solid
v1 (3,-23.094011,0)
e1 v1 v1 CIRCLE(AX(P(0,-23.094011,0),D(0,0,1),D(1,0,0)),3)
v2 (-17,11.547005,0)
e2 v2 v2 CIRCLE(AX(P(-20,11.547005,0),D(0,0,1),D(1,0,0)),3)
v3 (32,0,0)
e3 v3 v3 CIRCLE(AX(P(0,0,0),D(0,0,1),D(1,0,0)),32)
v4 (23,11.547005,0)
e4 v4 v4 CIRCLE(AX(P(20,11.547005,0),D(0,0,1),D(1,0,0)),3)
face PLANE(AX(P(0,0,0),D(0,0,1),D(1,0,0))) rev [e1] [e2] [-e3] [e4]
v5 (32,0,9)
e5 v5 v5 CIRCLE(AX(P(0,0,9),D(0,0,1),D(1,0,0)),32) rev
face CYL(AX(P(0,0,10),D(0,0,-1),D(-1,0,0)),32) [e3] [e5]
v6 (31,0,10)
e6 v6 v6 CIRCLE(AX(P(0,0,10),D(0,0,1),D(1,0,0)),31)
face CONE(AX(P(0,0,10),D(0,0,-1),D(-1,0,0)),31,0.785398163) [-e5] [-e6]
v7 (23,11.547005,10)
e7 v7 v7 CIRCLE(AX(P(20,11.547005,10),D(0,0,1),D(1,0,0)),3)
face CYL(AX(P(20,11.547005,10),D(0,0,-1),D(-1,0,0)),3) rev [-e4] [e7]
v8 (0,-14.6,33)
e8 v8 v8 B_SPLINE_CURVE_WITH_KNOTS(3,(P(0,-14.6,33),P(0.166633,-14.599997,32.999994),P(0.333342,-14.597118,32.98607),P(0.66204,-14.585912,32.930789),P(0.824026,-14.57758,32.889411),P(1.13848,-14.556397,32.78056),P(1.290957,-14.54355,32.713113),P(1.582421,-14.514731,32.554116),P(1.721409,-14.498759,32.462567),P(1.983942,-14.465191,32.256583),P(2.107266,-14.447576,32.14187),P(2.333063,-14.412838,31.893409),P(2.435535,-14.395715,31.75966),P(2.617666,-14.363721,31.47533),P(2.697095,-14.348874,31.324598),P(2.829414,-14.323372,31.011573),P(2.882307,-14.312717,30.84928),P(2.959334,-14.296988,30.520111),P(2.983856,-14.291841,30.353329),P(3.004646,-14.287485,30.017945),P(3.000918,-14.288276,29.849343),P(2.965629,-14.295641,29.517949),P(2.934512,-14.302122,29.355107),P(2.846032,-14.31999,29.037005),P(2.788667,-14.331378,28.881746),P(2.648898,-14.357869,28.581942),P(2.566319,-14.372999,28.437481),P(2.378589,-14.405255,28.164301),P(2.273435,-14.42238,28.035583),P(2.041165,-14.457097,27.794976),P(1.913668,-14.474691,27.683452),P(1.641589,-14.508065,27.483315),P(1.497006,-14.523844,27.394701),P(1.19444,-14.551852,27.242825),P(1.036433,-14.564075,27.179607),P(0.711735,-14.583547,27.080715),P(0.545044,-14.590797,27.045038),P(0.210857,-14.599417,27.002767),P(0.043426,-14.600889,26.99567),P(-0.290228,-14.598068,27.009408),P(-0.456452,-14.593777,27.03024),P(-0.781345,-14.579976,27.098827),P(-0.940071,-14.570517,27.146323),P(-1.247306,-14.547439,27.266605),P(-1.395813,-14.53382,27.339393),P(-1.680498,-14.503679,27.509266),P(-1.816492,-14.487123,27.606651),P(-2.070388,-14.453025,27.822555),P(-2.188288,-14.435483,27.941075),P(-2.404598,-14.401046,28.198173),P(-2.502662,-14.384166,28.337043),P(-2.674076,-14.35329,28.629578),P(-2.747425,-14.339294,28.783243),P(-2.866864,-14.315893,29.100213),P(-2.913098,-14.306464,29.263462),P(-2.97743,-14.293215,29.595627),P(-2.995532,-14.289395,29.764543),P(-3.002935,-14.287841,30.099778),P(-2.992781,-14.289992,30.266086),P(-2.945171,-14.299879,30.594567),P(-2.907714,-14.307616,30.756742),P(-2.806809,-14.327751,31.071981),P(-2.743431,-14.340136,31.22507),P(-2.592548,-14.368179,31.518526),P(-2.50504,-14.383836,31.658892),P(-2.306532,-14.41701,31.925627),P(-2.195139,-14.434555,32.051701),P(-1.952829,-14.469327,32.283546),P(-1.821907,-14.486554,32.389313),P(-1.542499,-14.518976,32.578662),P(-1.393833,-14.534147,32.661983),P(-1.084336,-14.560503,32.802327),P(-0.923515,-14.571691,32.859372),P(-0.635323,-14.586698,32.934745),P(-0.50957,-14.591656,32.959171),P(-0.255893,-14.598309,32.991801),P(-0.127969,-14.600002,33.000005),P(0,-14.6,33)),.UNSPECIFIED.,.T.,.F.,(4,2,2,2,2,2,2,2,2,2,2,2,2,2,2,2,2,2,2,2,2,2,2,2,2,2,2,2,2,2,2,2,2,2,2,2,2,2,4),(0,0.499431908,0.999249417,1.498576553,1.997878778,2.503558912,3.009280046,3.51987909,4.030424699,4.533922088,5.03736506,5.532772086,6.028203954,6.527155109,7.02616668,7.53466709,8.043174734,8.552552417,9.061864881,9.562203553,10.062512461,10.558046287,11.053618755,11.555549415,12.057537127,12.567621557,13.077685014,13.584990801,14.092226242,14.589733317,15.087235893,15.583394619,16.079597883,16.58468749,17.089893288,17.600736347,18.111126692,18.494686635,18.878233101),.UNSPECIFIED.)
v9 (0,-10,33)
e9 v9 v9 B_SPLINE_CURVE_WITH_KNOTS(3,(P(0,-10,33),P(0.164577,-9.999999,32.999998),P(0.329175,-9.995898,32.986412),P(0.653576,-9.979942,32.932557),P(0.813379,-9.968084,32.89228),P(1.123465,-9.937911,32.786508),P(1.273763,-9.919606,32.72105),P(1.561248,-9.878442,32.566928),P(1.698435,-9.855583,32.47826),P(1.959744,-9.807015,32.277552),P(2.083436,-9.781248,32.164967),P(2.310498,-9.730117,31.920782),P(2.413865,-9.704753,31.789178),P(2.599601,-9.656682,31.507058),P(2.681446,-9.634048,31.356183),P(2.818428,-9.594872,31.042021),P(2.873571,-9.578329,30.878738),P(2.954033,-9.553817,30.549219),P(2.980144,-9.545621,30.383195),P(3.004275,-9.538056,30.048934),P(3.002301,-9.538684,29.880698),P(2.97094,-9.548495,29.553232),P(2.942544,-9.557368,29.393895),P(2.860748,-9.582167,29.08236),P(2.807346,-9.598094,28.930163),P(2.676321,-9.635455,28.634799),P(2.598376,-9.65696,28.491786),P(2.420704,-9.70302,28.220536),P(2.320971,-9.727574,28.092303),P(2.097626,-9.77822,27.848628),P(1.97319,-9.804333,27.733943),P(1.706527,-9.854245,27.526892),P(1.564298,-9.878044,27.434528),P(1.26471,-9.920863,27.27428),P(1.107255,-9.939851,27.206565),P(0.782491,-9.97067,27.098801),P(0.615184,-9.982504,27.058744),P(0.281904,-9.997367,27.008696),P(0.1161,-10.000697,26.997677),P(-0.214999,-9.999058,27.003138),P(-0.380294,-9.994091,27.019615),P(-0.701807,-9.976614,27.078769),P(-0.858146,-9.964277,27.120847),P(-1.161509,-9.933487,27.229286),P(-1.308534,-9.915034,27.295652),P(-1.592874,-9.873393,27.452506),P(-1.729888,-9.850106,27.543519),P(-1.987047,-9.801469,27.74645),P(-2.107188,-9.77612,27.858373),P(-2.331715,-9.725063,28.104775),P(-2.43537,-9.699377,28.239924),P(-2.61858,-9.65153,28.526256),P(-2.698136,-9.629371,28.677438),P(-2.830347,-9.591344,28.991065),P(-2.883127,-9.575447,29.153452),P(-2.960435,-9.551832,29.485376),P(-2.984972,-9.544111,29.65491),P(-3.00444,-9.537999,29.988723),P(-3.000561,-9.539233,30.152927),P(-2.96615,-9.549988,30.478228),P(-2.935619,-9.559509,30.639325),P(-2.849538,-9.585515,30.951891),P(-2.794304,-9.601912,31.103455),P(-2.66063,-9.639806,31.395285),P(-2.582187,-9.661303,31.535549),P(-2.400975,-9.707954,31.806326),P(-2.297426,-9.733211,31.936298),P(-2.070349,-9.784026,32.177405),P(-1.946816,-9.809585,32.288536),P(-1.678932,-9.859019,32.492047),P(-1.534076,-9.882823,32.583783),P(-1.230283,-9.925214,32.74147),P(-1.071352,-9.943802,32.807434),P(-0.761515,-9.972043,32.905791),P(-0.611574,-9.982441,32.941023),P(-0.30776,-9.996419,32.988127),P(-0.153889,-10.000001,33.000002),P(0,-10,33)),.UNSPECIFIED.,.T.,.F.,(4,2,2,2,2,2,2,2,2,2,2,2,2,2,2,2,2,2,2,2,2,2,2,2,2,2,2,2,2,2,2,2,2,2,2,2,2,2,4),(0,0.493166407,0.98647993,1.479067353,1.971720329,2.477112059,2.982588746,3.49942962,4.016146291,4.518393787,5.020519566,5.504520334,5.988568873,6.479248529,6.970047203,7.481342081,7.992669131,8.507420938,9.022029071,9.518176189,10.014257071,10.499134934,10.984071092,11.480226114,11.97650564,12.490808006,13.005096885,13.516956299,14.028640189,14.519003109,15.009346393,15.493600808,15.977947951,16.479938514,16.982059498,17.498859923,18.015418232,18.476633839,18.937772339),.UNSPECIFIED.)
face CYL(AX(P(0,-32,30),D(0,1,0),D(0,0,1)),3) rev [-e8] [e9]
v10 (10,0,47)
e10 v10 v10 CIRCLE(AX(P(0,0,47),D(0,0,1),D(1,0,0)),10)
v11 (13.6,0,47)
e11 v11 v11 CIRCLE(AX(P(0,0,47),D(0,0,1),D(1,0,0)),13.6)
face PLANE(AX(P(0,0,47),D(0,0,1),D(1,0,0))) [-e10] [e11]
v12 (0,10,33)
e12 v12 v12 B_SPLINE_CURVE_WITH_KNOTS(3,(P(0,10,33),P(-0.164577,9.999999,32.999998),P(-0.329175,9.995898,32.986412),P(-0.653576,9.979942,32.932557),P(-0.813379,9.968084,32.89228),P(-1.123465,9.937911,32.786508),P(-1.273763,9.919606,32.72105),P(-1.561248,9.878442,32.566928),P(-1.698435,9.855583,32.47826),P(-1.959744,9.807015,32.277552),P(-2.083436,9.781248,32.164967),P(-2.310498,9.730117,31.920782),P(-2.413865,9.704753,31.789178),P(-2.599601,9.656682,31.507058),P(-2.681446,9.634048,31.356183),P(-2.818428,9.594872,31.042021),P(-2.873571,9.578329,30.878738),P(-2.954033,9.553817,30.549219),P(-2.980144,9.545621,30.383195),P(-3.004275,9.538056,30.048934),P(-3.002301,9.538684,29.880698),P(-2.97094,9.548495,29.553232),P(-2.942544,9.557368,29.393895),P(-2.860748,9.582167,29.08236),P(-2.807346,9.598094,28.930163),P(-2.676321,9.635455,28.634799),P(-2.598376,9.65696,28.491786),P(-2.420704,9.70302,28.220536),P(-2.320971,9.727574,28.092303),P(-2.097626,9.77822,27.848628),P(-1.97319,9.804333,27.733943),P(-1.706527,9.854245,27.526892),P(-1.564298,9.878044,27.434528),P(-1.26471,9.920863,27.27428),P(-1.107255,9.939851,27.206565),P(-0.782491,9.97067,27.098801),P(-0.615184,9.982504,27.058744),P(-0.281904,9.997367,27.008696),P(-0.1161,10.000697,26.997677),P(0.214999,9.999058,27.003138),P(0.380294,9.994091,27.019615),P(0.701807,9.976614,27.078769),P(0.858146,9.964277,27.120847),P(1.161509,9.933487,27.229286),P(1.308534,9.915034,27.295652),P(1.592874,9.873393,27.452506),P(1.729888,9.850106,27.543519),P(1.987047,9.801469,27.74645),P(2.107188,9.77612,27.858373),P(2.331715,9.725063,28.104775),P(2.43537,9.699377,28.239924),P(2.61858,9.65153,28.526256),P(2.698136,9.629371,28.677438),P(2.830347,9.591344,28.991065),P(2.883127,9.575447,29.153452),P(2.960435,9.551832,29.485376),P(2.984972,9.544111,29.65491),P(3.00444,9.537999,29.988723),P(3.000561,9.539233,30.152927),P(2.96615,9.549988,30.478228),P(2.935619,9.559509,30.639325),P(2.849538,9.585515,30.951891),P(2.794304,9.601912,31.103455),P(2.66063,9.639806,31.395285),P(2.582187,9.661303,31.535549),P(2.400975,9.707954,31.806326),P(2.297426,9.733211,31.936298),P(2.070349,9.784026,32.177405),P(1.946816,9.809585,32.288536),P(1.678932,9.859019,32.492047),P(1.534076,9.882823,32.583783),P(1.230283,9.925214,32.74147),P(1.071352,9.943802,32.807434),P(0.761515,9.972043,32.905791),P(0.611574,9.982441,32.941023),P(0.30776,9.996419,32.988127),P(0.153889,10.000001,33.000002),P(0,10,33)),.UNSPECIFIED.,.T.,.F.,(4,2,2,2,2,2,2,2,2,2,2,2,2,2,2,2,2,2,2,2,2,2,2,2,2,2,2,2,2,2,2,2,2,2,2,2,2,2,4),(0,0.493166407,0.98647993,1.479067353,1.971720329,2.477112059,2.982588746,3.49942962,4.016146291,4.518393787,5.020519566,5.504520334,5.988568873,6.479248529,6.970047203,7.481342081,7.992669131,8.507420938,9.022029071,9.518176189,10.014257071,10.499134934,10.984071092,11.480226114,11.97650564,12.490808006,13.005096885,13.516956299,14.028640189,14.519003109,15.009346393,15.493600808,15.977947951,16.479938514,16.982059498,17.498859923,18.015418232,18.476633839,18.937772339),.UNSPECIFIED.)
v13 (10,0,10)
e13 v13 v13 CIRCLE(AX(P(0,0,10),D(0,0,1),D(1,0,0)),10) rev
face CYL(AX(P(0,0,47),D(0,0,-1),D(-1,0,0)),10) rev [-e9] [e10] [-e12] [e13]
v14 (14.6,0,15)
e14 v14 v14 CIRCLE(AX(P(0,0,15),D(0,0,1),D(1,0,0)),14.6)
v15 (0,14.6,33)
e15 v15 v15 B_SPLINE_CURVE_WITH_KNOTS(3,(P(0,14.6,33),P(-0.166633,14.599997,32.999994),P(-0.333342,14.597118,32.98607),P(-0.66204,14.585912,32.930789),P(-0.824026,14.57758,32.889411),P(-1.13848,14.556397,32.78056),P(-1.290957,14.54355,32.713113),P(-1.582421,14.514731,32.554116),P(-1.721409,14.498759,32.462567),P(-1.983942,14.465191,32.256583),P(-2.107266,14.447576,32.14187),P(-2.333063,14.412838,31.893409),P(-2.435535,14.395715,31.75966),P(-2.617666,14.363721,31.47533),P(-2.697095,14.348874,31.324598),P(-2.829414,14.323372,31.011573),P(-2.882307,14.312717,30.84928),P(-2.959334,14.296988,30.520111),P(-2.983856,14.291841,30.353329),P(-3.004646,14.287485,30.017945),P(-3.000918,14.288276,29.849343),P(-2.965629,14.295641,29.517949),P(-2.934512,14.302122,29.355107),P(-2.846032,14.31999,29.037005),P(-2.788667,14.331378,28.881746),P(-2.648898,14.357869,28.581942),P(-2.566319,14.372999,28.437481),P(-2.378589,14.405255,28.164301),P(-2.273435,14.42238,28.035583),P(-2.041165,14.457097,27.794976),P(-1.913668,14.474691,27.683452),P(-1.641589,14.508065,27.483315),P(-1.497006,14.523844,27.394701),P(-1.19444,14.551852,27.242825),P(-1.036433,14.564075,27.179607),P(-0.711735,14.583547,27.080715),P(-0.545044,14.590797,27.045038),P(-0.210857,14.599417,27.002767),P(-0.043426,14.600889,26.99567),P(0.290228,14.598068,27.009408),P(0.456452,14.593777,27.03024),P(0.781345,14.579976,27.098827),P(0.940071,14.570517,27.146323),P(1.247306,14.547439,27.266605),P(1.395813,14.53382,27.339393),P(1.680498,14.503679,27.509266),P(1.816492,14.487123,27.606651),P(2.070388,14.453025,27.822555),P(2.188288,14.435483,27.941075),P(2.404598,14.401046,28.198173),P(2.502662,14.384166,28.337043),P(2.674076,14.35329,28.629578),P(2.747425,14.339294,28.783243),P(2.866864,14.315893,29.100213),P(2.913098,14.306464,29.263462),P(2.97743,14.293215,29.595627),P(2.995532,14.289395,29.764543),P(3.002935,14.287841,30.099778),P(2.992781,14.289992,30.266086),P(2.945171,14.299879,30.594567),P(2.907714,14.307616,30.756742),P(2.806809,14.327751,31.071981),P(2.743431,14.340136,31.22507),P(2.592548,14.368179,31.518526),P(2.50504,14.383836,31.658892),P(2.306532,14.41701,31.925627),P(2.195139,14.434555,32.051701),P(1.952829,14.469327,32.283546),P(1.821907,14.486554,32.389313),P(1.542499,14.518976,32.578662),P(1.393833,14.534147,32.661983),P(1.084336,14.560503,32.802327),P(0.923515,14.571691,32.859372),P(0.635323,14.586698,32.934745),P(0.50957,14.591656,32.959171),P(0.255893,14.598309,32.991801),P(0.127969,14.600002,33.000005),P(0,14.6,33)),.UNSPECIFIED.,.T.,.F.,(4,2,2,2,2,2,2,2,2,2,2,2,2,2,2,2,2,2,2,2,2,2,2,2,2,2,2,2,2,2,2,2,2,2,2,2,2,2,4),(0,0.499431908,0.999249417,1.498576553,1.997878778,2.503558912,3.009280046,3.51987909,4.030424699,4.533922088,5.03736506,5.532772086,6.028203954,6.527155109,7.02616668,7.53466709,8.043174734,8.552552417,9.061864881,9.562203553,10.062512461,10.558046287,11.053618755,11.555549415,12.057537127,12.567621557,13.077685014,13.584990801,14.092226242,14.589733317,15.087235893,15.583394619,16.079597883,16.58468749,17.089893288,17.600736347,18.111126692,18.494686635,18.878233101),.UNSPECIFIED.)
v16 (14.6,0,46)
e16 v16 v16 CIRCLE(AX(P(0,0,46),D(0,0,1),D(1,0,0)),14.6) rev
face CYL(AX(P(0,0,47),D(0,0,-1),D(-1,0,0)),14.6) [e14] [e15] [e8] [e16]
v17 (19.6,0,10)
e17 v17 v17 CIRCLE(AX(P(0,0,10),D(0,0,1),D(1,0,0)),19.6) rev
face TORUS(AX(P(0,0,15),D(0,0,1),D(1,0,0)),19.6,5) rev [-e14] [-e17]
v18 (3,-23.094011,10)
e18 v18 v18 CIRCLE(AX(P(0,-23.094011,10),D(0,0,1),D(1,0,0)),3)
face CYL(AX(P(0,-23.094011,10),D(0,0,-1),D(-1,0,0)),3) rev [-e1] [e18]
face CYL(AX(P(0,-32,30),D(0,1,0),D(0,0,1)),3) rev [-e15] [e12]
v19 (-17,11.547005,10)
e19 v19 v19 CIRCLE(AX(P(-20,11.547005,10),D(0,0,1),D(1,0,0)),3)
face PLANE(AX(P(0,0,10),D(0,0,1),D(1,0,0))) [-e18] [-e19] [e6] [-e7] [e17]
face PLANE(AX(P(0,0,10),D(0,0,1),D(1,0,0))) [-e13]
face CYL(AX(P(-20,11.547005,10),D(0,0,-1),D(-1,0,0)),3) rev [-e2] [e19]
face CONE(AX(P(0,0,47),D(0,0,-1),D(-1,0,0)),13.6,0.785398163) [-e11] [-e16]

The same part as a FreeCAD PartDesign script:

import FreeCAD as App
import Part
import Sketcher
Q = App.Units.Quantity


def edges_at(feature, points):
    """Names of the edges that pass closest to the given points."""
    edges = feature.Shape.Edges
    near = lambda p: min(range(len(edges)), key=lambda i: edges[i].distToShape(Part.Vertex(*p))[0])
    return sorted({f"Edge{near(p) + 1}" for p in points})

doc = App.newDocument("Part")
body = doc.addObject("PartDesign::Body", "Body")

sketch1 = body.newObject("Sketcher::SketchObject", "Sketch")
sketch1.AttachmentSupport = (doc.getObject("XY_Plane"), [""])
sketch1.MapMode = "FlatFace"
sketch1.addGeometry(Part.Circle(App.Vector(0, 0, 0), App.Vector(0, 0, 1), 32), False)
sketch1.addGeometry(Part.Circle(App.Vector(0, -23.1, 0), App.Vector(0, 0, 1), 3), False)
sketch1.addGeometry(Part.Circle(App.Vector(-20, 11.5, 0), App.Vector(0, 0, 1), 3), False)
sketch1.addGeometry(Part.Circle(App.Vector(20, 11.5, 0), App.Vector(0, 0, 1), 3), False)
sketch1.addConstraint(Sketcher.Constraint("Coincident", 0, 3, -1, 1))
sketch1.addConstraint(Sketcher.Constraint("Equal", 1, 2))
sketch1.addConstraint(Sketcher.Constraint("Equal", 2, 3))
sketch1.addConstraint(Sketcher.Constraint("Symmetric", 2, 3, 3, 3, -2))
sketch1.addConstraint(Sketcher.Constraint("PointOnObject", 1, 3, -2))
sketch1.addConstraint(Sketcher.Constraint("Diameter", 0, Q("64 mm")))
sketch1.addConstraint(Sketcher.Constraint("Diameter", 1, Q("6 mm")))
sketch1.addConstraint(Sketcher.Constraint("DistanceX", 2, 3, -1, 1, Q("20 mm")))
sketch1.addConstraint(Sketcher.Constraint("DistanceY", 1, 3, -1, 1, Q("23.094011 mm")))
sketch1.addConstraint(Sketcher.Constraint("DistanceY", -1, 1, 2, 3, Q("11.547005 mm")))
pad1 = body.newObject("PartDesign::Pad", "Pad")
pad1.Profile = sketch1
pad1.Length = 10

sketch2 = body.newObject("Sketcher::SketchObject", "Sketch001")
sketch2.AttachmentSupport = (doc.getObject("XY_Plane"), [""])
sketch2.MapMode = "FlatFace"
sketch2.AttachmentOffset = App.Placement(App.Vector(0, 0, 10), App.Rotation())
sketch2.addGeometry(Part.Circle(App.Vector(0, 0, 0), App.Vector(0, 0, 1), 15), False)
sketch2.addGeometry(Part.Circle(App.Vector(0, 0, 0), App.Vector(0, 0, 1), 10), False)
sketch2.addConstraint(Sketcher.Constraint("Coincident", 0, 3, -1, 1))
sketch2.addConstraint(Sketcher.Constraint("Coincident", 1, 3, -1, 1))
sketch2.addConstraint(Sketcher.Constraint("Diameter", 1, Q("20 mm")))
sketch2.addConstraint(Sketcher.Constraint("Diameter", 0, Q("29.2 mm")))
pad2 = body.newObject("PartDesign::Pad", "Pad001")
pad2.Profile = sketch2
pad2.Length = 37

sketch3 = body.newObject("Sketcher::SketchObject", "Sketch002")
sketch3.AttachmentSupport = (doc.getObject("XZ_Plane"), [""])
sketch3.MapMode = "FlatFace"
sketch3.addGeometry(Part.Circle(App.Vector(0, 30, 0), App.Vector(0, 0, 1), 3), False)
sketch3.addConstraint(Sketcher.Constraint("PointOnObject", 0, 3, -2))
sketch3.addConstraint(Sketcher.Constraint("Diameter", 0, Q("6 mm")))
sketch3.addConstraint(Sketcher.Constraint("DistanceY", -1, 1, 0, 3, Q("30 mm")))
pocket1 = body.newObject("PartDesign::Pocket", "Pocket")
pocket1.Profile = sketch3
pocket1.Type = "ThroughAll"
pocket1.Midplane = True
doc.recompute()

fillet = body.newObject("PartDesign::Fillet", "Fillet")
fillet.Base = (pocket1, edges_at(pocket1, [(-14.6, 0, 10)]))
fillet.Radius = 5
doc.recompute()

chamfer = body.newObject("PartDesign::Chamfer", "Chamfer")
chamfer.Base = (fillet, edges_at(fillet, [(-14.6, 0, 47), (-32, 0, 10)]))
chamfer.Size = 1

doc.recompute()
